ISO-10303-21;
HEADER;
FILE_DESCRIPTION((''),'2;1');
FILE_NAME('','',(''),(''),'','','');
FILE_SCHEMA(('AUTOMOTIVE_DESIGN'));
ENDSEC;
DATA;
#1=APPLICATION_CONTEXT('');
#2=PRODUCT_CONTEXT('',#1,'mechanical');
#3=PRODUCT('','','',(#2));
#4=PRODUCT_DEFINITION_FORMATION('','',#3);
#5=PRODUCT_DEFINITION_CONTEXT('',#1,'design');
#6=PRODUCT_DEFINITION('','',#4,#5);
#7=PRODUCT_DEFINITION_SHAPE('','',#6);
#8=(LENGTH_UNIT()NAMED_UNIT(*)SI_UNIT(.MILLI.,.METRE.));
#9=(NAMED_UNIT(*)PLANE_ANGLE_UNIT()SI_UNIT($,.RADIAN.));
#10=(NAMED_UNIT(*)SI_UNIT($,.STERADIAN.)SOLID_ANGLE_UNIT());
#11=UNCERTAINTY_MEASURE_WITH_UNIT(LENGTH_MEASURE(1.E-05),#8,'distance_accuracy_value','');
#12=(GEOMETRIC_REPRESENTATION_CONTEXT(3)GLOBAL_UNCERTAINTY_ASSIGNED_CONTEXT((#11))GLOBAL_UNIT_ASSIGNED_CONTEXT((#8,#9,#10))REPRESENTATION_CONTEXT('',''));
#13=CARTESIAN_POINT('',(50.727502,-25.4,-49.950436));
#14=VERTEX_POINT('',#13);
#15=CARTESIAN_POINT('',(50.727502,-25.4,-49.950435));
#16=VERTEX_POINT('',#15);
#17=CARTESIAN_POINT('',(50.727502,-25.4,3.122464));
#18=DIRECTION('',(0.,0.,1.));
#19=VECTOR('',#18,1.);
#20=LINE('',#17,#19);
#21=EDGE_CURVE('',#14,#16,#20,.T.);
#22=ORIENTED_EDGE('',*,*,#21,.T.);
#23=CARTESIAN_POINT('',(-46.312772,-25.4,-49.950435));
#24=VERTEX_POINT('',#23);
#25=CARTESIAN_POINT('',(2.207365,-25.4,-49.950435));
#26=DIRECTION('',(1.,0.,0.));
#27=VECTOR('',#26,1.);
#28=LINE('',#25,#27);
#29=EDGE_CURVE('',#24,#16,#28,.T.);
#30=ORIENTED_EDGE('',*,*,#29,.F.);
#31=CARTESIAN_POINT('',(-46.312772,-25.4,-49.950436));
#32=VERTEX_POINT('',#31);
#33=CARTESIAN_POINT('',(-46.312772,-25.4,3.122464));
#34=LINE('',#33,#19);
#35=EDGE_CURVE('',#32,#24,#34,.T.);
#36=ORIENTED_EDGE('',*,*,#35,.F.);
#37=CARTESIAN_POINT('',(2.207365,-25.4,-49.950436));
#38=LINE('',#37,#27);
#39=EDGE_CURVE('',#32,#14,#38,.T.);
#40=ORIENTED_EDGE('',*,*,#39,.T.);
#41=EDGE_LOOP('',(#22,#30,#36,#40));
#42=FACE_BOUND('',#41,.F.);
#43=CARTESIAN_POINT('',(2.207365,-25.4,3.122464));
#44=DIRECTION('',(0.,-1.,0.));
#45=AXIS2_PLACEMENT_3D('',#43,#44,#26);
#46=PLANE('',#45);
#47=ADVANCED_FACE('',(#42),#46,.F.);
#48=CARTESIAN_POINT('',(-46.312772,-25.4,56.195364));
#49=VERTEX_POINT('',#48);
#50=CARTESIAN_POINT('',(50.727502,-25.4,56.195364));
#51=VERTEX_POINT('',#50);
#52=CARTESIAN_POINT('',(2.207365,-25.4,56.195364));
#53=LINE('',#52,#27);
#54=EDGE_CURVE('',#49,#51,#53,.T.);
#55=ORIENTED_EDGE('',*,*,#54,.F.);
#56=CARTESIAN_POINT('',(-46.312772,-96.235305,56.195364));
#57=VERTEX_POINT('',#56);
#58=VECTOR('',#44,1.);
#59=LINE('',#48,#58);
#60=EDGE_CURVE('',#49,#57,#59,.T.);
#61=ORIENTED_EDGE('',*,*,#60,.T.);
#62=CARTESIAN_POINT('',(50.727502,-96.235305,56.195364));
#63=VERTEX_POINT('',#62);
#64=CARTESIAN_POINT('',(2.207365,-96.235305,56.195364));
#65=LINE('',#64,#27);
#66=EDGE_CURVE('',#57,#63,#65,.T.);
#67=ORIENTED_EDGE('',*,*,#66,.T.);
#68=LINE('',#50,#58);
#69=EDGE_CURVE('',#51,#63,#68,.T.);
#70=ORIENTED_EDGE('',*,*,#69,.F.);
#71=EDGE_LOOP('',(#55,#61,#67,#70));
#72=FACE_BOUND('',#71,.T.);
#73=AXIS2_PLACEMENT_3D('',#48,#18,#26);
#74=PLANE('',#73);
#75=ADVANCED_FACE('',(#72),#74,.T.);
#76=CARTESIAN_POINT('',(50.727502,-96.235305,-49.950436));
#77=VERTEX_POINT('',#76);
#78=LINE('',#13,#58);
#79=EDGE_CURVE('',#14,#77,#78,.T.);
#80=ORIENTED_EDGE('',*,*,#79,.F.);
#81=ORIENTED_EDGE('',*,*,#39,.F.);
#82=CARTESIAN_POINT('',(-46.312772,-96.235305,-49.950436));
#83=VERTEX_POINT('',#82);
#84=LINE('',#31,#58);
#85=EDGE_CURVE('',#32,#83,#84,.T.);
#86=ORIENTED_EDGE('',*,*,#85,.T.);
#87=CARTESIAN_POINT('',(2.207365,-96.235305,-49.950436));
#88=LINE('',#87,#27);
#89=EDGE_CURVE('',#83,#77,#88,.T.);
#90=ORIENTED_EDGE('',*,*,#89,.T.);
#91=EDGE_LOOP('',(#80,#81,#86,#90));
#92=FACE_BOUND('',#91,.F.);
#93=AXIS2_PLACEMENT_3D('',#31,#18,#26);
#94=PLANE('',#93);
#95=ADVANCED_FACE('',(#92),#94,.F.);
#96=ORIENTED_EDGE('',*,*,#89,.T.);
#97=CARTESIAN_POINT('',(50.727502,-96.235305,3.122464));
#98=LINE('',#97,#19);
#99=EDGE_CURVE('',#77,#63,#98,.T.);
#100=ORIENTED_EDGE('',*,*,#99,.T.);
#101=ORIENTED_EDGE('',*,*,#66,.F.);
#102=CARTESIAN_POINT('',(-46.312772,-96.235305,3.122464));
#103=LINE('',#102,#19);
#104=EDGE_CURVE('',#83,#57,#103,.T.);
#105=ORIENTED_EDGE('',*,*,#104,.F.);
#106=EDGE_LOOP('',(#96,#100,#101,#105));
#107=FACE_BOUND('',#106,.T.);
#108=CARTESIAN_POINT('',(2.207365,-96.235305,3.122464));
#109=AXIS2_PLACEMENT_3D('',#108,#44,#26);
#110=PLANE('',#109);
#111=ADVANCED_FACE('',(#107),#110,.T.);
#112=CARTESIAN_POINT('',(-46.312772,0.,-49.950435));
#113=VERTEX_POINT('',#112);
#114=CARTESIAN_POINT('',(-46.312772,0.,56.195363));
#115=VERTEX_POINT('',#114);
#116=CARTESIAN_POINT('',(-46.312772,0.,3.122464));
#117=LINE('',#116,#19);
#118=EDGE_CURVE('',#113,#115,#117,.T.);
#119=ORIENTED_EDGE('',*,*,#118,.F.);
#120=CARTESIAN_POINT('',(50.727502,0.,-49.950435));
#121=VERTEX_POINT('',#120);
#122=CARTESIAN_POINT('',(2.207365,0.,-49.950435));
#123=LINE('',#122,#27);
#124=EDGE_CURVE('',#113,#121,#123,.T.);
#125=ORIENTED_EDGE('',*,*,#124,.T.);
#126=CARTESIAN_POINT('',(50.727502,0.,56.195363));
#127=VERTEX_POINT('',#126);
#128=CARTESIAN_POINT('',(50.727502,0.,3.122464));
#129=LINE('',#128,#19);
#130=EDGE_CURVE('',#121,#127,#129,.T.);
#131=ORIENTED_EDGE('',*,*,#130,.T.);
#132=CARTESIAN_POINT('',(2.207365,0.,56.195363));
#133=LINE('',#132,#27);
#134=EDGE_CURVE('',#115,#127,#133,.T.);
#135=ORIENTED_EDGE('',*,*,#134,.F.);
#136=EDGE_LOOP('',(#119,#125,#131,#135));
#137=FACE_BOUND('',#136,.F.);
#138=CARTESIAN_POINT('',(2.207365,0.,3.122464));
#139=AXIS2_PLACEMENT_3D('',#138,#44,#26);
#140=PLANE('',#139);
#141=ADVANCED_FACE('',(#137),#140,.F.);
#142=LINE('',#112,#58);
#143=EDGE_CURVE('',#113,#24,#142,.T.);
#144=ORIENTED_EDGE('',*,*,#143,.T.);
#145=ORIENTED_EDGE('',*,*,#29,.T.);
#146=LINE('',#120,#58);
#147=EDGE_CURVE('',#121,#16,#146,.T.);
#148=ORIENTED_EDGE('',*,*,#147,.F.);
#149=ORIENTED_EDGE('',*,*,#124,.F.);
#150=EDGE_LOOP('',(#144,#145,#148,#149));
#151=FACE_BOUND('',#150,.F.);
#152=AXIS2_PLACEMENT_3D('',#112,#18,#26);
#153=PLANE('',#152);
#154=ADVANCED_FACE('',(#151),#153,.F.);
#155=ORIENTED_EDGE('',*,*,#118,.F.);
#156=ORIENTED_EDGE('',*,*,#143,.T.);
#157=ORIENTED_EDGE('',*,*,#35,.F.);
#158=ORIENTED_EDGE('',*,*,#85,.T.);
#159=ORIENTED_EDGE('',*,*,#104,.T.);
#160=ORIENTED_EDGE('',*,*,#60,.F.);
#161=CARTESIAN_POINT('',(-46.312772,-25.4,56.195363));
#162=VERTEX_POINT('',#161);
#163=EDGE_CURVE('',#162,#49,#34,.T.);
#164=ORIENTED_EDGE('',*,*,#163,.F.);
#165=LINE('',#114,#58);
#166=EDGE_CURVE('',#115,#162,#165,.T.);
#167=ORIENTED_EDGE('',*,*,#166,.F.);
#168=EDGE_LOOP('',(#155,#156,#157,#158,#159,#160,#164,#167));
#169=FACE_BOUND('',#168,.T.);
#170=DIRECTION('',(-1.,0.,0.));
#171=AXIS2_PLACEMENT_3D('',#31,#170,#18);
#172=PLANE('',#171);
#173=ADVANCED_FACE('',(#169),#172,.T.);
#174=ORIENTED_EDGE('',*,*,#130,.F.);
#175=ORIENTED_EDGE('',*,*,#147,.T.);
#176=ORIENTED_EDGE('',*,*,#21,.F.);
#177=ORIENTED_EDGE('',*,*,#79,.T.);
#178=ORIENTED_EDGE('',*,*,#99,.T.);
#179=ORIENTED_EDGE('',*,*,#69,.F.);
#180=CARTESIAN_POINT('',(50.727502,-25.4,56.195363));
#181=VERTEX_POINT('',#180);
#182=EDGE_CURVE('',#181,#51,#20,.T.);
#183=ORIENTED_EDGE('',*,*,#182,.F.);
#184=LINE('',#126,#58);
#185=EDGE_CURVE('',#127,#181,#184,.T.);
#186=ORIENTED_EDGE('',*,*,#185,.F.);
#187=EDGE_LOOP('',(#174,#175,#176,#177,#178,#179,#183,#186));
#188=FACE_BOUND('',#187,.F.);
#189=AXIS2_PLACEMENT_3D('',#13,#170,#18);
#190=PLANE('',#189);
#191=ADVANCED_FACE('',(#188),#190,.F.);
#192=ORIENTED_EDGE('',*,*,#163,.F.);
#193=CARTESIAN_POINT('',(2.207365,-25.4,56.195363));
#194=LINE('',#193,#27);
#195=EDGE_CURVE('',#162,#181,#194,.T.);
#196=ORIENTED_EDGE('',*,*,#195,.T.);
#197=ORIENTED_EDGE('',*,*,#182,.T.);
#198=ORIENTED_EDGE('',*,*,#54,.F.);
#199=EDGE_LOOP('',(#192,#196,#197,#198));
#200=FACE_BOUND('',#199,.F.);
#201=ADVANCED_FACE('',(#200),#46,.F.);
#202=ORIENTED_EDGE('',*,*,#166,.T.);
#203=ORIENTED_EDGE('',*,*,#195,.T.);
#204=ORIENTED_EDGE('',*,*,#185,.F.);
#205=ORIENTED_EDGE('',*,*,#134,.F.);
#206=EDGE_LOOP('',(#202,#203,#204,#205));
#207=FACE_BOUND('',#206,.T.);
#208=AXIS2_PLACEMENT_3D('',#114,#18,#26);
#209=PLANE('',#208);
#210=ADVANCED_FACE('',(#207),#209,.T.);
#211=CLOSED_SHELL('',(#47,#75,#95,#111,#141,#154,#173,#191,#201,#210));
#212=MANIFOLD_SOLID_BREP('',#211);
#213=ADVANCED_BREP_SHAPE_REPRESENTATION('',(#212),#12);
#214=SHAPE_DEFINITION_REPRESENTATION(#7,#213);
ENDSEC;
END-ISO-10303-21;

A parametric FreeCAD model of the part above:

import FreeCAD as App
import Part
import Sketcher

V = App.Vector
Q = App.Units.Quantity


def add_polygon(sketch, points):
    """Adds a closed chain of lines whose ends are joined by coincident constraints."""
    first, n = sketch.GeometryCount, len(points)
    for a, b in zip(points, points[1:] + points[:1]):
        sketch.addGeometry(Part.LineSegment(App.Vector(*a, 0), App.Vector(*b, 0)), False)
    for i in range(n):
        sketch.addConstraint(Sketcher.Constraint("Coincident", first + i, 2, first + (i + 1) % n, 1))

doc = App.newDocument("Part")
body = doc.addObject("PartDesign::Body", "Body")

sketch1 = body.newObject("Sketcher::SketchObject", "Sketch")
sketch1.AttachmentSupport = (doc.getObject("XZ_Plane"), [""])
sketch1.MapMode = "FlatFace"
add_polygon(sketch1, [(-46.312772, 56.195363), (-46.312772, -49.950435), (50.727502, -49.950435), (50.727502, 56.195363)])
sketch1.addConstraint(Sketcher.Constraint("Vertical", 0))
sketch1.addConstraint(Sketcher.Constraint("Horizontal", 1))
sketch1.addConstraint(Sketcher.Constraint("Vertical", 2))
sketch1.addConstraint(Sketcher.Constraint("Horizontal", 3))
sketch1.addConstraint(Sketcher.Constraint("DistanceY", 0, 2, 0, 1, Q("106.145799 mm")))
sketch1.addConstraint(Sketcher.Constraint("DistanceX", 1, 1, 1, 2, Q("97.040274 mm")))
sketch1.addConstraint(Sketcher.Constraint("DistanceX", 0, 2, -1, 1, Q("46.312772 mm")))
sketch1.addConstraint(Sketcher.Constraint("DistanceY", 0, 2, -1, 1, Q("49.950435 mm")))
pad1 = body.newObject("PartDesign::Pad", "Pad")
pad1.Profile = sketch1
pad1.Length = Q("1 in")

sketch2 = body.newObject("Sketcher::SketchObject", "Sketch001")
sketch2.AttachmentSupport = (doc.getObject("XZ_Plane"), [""])
sketch2.MapMode = "FlatFace"
sketch2.AttachmentOffset = App.Placement(V(0, 0, 1 * 25.4), App.Rotation())
add_polygon(sketch2, [(-46.312772, 56.195364), (-46.312772, -49.950436), (50.727502, -49.950436), (50.727502, 56.195364)])
sketch2.addConstraint(Sketcher.Constraint("Vertical", 0))
sketch2.addConstraint(Sketcher.Constraint("Horizontal", 1))
sketch2.addConstraint(Sketcher.Constraint("Vertical", 2))
sketch2.addConstraint(Sketcher.Constraint("Horizontal", 3))
sketch2.addConstraint(Sketcher.Constraint("DistanceY", 0, 2, 0, 1, Q("106.1458 mm")))
sketch2.addConstraint(Sketcher.Constraint("DistanceX", 1, 1, 1, 2, Q("97.040274 mm")))
sketch2.addConstraint(Sketcher.Constraint("DistanceX", 0, 2, -1, 1, Q("46.312772 mm")))
sketch2.addConstraint(Sketcher.Constraint("DistanceY", 0, 2, -1, 1, Q("49.950436 mm")))
pad2 = body.newObject("PartDesign::Pad", "Pad001")
pad2.Profile = sketch2
pad2.Length = 70.835305

doc.recompute()
